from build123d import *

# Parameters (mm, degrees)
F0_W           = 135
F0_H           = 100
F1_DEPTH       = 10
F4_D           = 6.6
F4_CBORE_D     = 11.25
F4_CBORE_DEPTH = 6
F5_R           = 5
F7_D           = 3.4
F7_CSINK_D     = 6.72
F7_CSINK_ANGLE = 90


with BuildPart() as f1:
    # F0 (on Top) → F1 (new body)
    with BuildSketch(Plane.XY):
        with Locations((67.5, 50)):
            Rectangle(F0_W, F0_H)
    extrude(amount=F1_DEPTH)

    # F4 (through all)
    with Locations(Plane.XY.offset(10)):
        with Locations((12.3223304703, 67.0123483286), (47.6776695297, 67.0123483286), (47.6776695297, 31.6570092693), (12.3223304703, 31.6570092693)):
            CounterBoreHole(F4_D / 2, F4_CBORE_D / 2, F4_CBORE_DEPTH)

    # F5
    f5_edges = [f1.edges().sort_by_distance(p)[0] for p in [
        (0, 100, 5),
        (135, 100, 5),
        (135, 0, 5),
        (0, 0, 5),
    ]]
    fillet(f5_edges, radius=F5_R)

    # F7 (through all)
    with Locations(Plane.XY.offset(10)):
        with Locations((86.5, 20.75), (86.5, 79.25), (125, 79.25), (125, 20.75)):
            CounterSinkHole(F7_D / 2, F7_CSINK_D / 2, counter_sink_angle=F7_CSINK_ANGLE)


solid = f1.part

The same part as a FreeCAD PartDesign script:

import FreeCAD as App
import Part
import Sketcher
from FreeCAD import Vector


def edges_at(feature, points):
    """Names of the edges that pass closest to the given points."""
    edges = feature.Shape.Edges
    near = lambda p: min(range(len(edges)), key=lambda i: edges[i].distToShape(Part.Vertex(*p))[0])
    return sorted({f"Edge{near(p) + 1}" for p in points})


def add_polygon(sketch, points):
    """Adds a closed chain of lines whose ends are joined by coincident constraints."""
    first, n = sketch.GeometryCount, len(points)
    for a, b in zip(points, points[1:] + points[:1]):
        sketch.addGeometry(Part.LineSegment(App.Vector(*a, 0), App.Vector(*b, 0)), False)
    for i in range(n):
        sketch.addConstraint(Sketcher.Constraint("Coincident", first + i, 2, first + (i + 1) % n, 1))

doc = App.newDocument("Part")
params = doc.addObject("Spreadsheet::Sheet", "Params")
for row, (alias, value) in enumerate([
    ("sketch1_width", "135 mm"),
    ("sketch1_height", "100 mm"),
    ("pad1_length", "10 mm"),
    ("sketch2_diameter", "6.6 mm"),
    ("hole_diameter", "6.6 mm"),
    ("hole_cbore_diameter", "11.25 mm"),
    ("hole_cbore_depth", "6 mm"),
    ("fillet_radius", "5 mm"),
    ("sketch3_diameter", "3.4 mm"),
    ("hole2_diameter", "3.4 mm"),
    ("hole2_csink_diameter", "6.72 mm"),
], start=1):
    params.set(f"A{row}", alias)
    params.set(f"B{row}", "=" + value)
    params.setAlias(f"B{row}", alias)

body = doc.addObject("PartDesign::Body", "Body")

sketch1 = body.newObject("Sketcher::SketchObject", "Sketch")
sketch1.AttachmentSupport = (doc.getObject("XY_Plane"), [""])
sketch1.MapMode = "FlatFace"
add_polygon(sketch1, [(0, 100), (0, 0), (135, 0), (135, 100)])
sketch1.addConstraint([
    Sketcher.Constraint("Vertical", 0),
    Sketcher.Constraint("Horizontal", 1),
    Sketcher.Constraint("Vertical", 2),
    Sketcher.Constraint("Horizontal", 3),
    Sketcher.Constraint("Coincident", 0, 2, -1, 1),
    Sketcher.Constraint("DistanceX", 1, 1, 1, 2, 135.0),
    Sketcher.Constraint("DistanceY", 0, 2, 0, 1, 100.0),
])
sketch1.setExpression("Constraints[9]", "Params.sketch1_width")
sketch1.setExpression("Constraints[10]", "Params.sketch1_height")
pad1 = body.newObject("PartDesign::Pad", "Pad")
pad1.Profile = sketch1
pad1.setExpression("Length", "Params.pad1_length")

sketch2 = body.newObject("Sketcher::SketchObject", "Sketch001")
sketch2.AttachmentSupport = (doc.getObject("XY_Plane"), [""])
sketch2.MapMode = "FlatFace"
sketch2.AttachmentOffset = App.Placement(Vector(0, 0, 10), App.Rotation())
sketch2.addGeometry([
    Part.Circle(Vector(12.32233, 67.012348, 0), Vector(0, 0, 1), 3.3),
    Part.Circle(Vector(47.67767, 67.012348, 0), Vector(0, 0, 1), 3.3),
    Part.Circle(Vector(47.67767, 31.657009, 0), Vector(0, 0, 1), 3.3),
    Part.Circle(Vector(12.32233, 31.657009, 0), Vector(0, 0, 1), 3.3),
], False)
sketch2.addConstraint([
    Sketcher.Constraint("Equal", 0, 1),
    Sketcher.Constraint("Equal", 1, 2),
    Sketcher.Constraint("Equal", 2, 3),
    Sketcher.Constraint("Horizontal", 0, 3, 1, 3),
    Sketcher.Constraint("Horizontal", 2, 3, 3, 3),
    Sketcher.Constraint("Vertical", 1, 3, 2, 3),
    Sketcher.Constraint("Vertical", 0, 3, 3, 3),
    Sketcher.Constraint("Diameter", 0, 6.6),
    Sketcher.Constraint("DistanceX", -1, 1, 0, 3, 12.32233),
    Sketcher.Constraint("DistanceY", -1, 1, 0, 3, 67.012348),
    Sketcher.Constraint("DistanceX", -1, 1, 1, 3, 47.67767),
    Sketcher.Constraint("DistanceY", -1, 1, 2, 3, 31.657009),
])
sketch2.setExpression("Constraints[7]", "Params.sketch2_diameter")
doc.recompute()
hole = body.newObject("PartDesign::Hole", "Hole")
hole.Profile = sketch2
hole.ThreadType = "None"
hole.setExpression("Diameter", "Params.hole_diameter")
hole.DepthType = "ThroughAll"
hole.HoleCutType = "Counterbore"
hole.setExpression("HoleCutDiameter", "Params.hole_cbore_diameter")
hole.setExpression("HoleCutDepth", "Params.hole_cbore_depth")
doc.recompute()

fillet = body.newObject("PartDesign::Fillet", "Fillet")
fillet.Base = (hole, edges_at(hole, [
    (0, 100, 5),
    (135, 100, 5),
    (135, 0, 5),
    (0, 0, 5),
]))
fillet.setExpression("Radius", "Params.fillet_radius")

sketch3 = body.newObject("Sketcher::SketchObject", "Sketch002")
sketch3.AttachmentSupport = (doc.getObject("XY_Plane"), [""])
sketch3.MapMode = "FlatFace"
sketch3.AttachmentOffset = App.Placement(Vector(0, 0, 10), App.Rotation())
sketch3.addGeometry([
    Part.Circle(Vector(86.5, 20.75, 0), Vector(0, 0, 1), 1.7),
    Part.Circle(Vector(86.5, 79.25, 0), Vector(0, 0, 1), 1.7),
    Part.Circle(Vector(125, 79.25, 0), Vector(0, 0, 1), 1.7),
    Part.Circle(Vector(125, 20.75, 0), Vector(0, 0, 1), 1.7),
], False)
sketch3.addConstraint([
    Sketcher.Constraint("Equal", 0, 1),
    Sketcher.Constraint("Equal", 1, 2),
    Sketcher.Constraint("Equal", 2, 3),
    Sketcher.Constraint("Horizontal", 1, 3, 2, 3),
    Sketcher.Constraint("Horizontal", 0, 3, 3, 3),
    Sketcher.Constraint("Vertical", 0, 3, 1, 3),
    Sketcher.Constraint("Vertical", 2, 3, 3, 3),
    Sketcher.Constraint("Diameter", 0, 3.4),
    Sketcher.Constraint("DistanceX", -1, 1, 2, 3, 125.0),
    Sketcher.Constraint("DistanceX", -1, 1, 0, 3, 86.5),
    Sketcher.Constraint("DistanceY", 0, 3, 1, 3, 58.5),
    Sketcher.Constraint("DistanceY", -1, 1, 0, 3, 20.75),
])
sketch3.setExpression("Constraints[7]", "Params.sketch3_diameter")
doc.recompute()
hole2 = body.newObject("PartDesign::Hole", "Hole001")
hole2.Profile = sketch3
hole2.ThreadType = "None"
hole2.setExpression("Diameter", "Params.hole2_diameter")
hole2.DepthType = "ThroughAll"
hole2.HoleCutType = "Countersink"
hole2.setExpression("HoleCutDiameter", "Params.hole2_csink_diameter")
hole2.HoleCutCountersinkAngle = 90

doc.recompute()
